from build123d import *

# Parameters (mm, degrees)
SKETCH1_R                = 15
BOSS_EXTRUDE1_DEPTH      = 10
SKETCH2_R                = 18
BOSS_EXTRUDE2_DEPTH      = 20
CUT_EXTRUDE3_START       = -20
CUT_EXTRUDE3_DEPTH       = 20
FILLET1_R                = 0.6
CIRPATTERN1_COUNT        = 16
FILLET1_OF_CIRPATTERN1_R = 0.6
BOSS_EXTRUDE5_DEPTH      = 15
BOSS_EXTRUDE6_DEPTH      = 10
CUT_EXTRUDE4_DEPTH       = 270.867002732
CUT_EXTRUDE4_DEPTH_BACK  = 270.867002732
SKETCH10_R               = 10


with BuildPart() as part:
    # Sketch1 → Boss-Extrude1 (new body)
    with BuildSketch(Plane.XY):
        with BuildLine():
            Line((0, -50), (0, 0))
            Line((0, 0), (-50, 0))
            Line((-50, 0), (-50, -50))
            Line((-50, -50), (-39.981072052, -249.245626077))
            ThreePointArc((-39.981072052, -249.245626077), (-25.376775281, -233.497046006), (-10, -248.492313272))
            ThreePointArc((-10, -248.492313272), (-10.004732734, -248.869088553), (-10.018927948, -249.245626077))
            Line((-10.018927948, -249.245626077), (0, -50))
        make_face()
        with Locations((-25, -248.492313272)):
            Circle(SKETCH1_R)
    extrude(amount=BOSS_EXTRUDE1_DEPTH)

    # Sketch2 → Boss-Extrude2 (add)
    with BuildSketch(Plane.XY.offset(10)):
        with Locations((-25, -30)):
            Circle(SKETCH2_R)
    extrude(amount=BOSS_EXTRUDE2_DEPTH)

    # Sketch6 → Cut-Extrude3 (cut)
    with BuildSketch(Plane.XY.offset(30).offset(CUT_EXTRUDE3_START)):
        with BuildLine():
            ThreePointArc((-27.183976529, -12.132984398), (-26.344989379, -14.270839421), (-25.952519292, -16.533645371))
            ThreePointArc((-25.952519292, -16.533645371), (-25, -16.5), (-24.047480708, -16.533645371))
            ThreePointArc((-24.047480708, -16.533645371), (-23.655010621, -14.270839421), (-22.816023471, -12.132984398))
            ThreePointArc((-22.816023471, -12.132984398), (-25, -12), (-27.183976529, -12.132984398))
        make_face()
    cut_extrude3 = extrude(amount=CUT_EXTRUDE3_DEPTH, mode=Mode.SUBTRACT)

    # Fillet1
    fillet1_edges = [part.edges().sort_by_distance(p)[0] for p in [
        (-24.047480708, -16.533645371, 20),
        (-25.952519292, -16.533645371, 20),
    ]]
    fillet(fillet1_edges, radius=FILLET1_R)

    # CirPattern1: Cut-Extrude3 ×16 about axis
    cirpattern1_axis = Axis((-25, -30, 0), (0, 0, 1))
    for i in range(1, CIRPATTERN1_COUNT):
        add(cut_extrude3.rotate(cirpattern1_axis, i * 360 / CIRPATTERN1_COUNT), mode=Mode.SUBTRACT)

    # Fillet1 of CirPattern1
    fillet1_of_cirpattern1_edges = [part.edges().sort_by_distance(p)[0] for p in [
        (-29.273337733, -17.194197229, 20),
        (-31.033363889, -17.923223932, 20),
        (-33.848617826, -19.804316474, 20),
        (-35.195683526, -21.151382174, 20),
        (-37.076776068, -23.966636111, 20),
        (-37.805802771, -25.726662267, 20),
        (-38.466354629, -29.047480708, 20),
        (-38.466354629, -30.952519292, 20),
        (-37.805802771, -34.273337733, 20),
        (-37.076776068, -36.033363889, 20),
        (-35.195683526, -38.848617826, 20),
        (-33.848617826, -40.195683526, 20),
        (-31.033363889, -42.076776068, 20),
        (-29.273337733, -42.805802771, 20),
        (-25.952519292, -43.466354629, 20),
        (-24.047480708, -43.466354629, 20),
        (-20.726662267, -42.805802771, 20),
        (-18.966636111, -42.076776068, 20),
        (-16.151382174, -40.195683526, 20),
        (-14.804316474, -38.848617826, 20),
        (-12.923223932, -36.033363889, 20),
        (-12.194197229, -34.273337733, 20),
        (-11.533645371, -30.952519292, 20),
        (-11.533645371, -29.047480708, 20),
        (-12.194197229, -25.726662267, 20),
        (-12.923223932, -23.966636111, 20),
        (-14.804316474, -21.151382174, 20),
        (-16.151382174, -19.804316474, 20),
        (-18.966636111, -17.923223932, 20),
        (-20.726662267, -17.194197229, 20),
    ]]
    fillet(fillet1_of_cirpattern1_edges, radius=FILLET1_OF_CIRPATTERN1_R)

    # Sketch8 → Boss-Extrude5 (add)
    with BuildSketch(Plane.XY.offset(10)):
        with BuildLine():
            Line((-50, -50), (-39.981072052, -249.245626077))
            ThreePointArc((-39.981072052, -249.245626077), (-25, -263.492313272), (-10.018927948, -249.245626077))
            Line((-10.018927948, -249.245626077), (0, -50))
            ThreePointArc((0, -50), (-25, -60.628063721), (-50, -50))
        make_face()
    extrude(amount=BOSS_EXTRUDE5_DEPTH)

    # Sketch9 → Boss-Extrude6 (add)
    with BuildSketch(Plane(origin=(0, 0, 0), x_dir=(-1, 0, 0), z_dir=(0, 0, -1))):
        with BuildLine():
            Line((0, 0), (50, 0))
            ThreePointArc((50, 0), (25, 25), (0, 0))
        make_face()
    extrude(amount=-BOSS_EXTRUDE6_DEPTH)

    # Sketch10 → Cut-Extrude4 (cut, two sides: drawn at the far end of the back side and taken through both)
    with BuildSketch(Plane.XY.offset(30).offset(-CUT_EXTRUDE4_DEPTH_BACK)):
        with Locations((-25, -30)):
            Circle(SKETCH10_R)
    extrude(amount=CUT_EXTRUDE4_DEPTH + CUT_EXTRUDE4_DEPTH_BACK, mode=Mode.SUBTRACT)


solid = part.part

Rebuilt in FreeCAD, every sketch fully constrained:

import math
import FreeCAD as App
import Part
import Sketcher
from FreeCAD import Vector
Q = App.Units.Quantity


def edges_at(feature, points):
    """Names of the edges that pass closest to the given points."""
    edges = feature.Shape.Edges
    near = lambda p: min(range(len(edges)), key=lambda i: edges[i].distToShape(Part.Vertex(*p))[0])
    return sorted({f"Edge{near(p) + 1}" for p in points})

doc = App.newDocument("Part")
body = doc.addObject("PartDesign::Body", "Body")

# Sketch on XY plane
sketch1 = doc.addObject("Sketcher::SketchObject", "Sketch")
body.addObject(sketch1)
sketch1.AttachmentSupport = (doc.XY_Plane, [""])
sketch1.MapMode = "FlatFace"
sketch1.addGeometry([
    Part.LineSegment(Vector(0, -50, 0), Vector(0, 0, 0)),  # 0
    Part.LineSegment(Vector(0, 0, 0), Vector(-50, 0, 0)),  # 1
    Part.LineSegment(Vector(-50, 0, 0), Vector(-50, -50, 0)),  # 2
    Part.LineSegment(Vector(-50, -50, 0), Vector(-40, -249, 0)),  # 3
    Part.ArcOfCircle(Part.Circle(Vector(-25, -248, 0), Vector(0, 0, 1), 15), math.radians(-177), math.radians(-3)),  # 4
    Part.LineSegment(Vector(-10, -249, 0), Vector(0, -50, 0)),  # 5
], False)
sketch1.addConstraint([
    Sketcher.Constraint("Coincident", 0, 2, 1, 1),
    Sketcher.Constraint("Coincident", 1, 2, 2, 1),
    Sketcher.Constraint("Coincident", 2, 2, 3, 1),
    Sketcher.Constraint("Tangent", 3, 2, 4, 1),
    Sketcher.Constraint("Tangent", 4, 2, 5, 1),
    Sketcher.Constraint("Coincident", 5, 2, 0, 1),
    Sketcher.Constraint("Vertical", 0),
    Sketcher.Constraint("Horizontal", 1),
    Sketcher.Constraint("Vertical", 2),
    Sketcher.Constraint("Coincident", 0, 2, -1, 1),
    Sketcher.Constraint("Horizontal", 3, 2, 4, 2),
    Sketcher.Constraint("Horizontal", 2, 2, 5, 2),
    Sketcher.Constraint("Equal", 1, 0),
    Sketcher.Constraint("Radius", 4, Q("15 mm")),
    Sketcher.Constraint("DistanceX", 1, 2, 1, 1, Q("50 mm")),
    Sketcher.Constraint("Distance", 3, Q("199.497364 mm")),
])
pad1 = doc.addObject("PartDesign::Pad", "Pad")
body.addObject(pad1)
pad1.Profile = sketch1
pad1.Length = 10

# Sketch on XY plane
sketch2 = doc.addObject("Sketcher::SketchObject", "Sketch001")
body.addObject(sketch2)
sketch2.AttachmentSupport = (doc.XY_Plane, [""])
sketch2.MapMode = "FlatFace"
sketch2.AttachmentOffset = App.Placement(Vector(0, 0, 10), App.Rotation())
sketch2.addGeometry(Part.Circle(Vector(-25, -30, 0), Vector(0, 0, 1), 18), False)
sketch2.addConstraint([
    Sketcher.Constraint("Diameter", 0, Q("36 mm")),
    Sketcher.Constraint("DistanceX", 0, 3, -1, 1, Q("25 mm")),
    Sketcher.Constraint("DistanceY", 0, 3, -1, 1, Q("30 mm")),
])
pad2 = doc.addObject("PartDesign::Pad", "Pad001")
body.addObject(pad2)
pad2.Profile = sketch2
pad2.Length = 20

# Sketch on XY plane
sketch3 = doc.addObject("Sketcher::SketchObject", "Sketch002")
body.addObject(sketch3)
sketch3.AttachmentSupport = (doc.XY_Plane, [""])
sketch3.MapMode = "FlatFace"
sketch3.AttachmentOffset = App.Placement(Vector(0, 0, 10), App.Rotation())
sketch3.addGeometry([
    Part.ArcOfCircle(Part.Circle(Vector(-37.3, -17.3, 0), Vector(0, 0, 1), 11.4), math.radians(4), math.radians(27)),
    Part.ArcOfCircle(Part.Circle(Vector(-25, -30, 0), Vector(0, 0, 1), 13.5), math.radians(85.95), math.radians(94.05)),
    Part.ArcOfCircle(Part.Circle(Vector(-12.7, -17.3, 0), Vector(0, 0, 1), 11.4), math.radians(153), math.radians(176)),
    Part.ArcOfCircle(Part.Circle(Vector(-25, -30, 0), Vector(0, 0, 1), 18), math.radians(83.03), math.radians(96.97)),
], False)
sketch3.addConstraint([
    Sketcher.Constraint("Coincident", 0, 1, 1, 2),
    Sketcher.Constraint("Coincident", 1, 1, 2, 2),
    Sketcher.Constraint("Coincident", 2, 1, 3, 1),
    Sketcher.Constraint("Coincident", 3, 2, 0, 2),
    Sketcher.Constraint("Coincident", 3, 3, 1, 3),
    Sketcher.Constraint("Equal", 0, 2),
    Sketcher.Constraint("Horizontal", 0, 3, 2, 3),
    Sketcher.Constraint("Horizontal", 0, 1, 1, 1),
    Sketcher.Constraint("Radius", 3, Q("18 mm")),
    Sketcher.Constraint("Radius", 1, Q("13.5 mm")),
    Sketcher.Constraint("DistanceX", 1, 3, -1, 1, Q("25 mm")),
    Sketcher.Constraint("DistanceY", 1, 3, -1, 1, Q("30 mm")),
    Sketcher.Constraint("Radius", 0, Q("11.375157 mm")),
    Sketcher.Constraint("DistanceX", 0, 1, -1, 1, Q("25.952519 mm")),
    Sketcher.Constraint("DistanceY", 1, 1, 2, 1, Q("4.400661 mm")),
])
pocket1 = doc.addObject("PartDesign::Pocket", "Pocket")
body.addObject(pocket1)
pocket1.Profile = sketch3
pocket1.Length = 20
pocket1.Reversed = True
doc.recompute()

fillet = doc.addObject("PartDesign::Fillet", "Fillet")
body.addObject(fillet)
fillet.Base = (pocket1, edges_at(pocket1, [(-24.047, -16.534, 20), (-25.953, -16.534, 20)]))
fillet.Radius = 0.6
doc.recompute()

datumline = doc.addObject("PartDesign::Line", "DatumLine")
body.addObject(datumline)
datumline.Placement = App.Placement(Vector(-25, -30, 0), App.Rotation(Vector(0, 0, 1), Vector(0, 0, 1)))
polarpattern = doc.addObject("PartDesign::PolarPattern", "PolarPattern")
body.addObject(polarpattern)
polarpattern.Originals = [pocket1]
polarpattern.Axis = (datumline, [""])
polarpattern.Angle = 360
polarpattern.Occurrences = 16
body.Tip = polarpattern
doc.recompute()

fillet2 = doc.addObject("PartDesign::Fillet", "Fillet001")
body.addObject(fillet2)
fillet2.Base = (polarpattern, edges_at(polarpattern, [
    (-29.273, -17.194, 20),
    (-31.033, -17.923, 20),
    (-33.849, -19.804, 20),
    (-35.196, -21.151, 20),
    (-37.077, -23.967, 20),
    (-37.806, -25.727, 20),
    (-38.466, -29.047, 20),
    (-38.466, -30.953, 20),
    (-37.806, -34.273, 20),
    (-37.077, -36.033, 20),
    (-35.196, -38.849, 20),
    (-33.849, -40.196, 20),
    (-31.033, -42.077, 20),
    (-29.273, -42.806, 20),
    (-25.953, -43.466, 20),
    (-24.047, -43.466, 20),
    (-20.727, -42.806, 20),
    (-18.967, -42.077, 20),
    (-16.151, -40.196, 20),
    (-14.804, -38.849, 20),
    (-12.923, -36.033, 20),
    (-12.194, -34.273, 20),
    (-11.534, -30.953, 20),
    (-11.534, -29.047, 20),
    (-12.194, -25.727, 20),
    (-12.923, -23.967, 20),
    (-14.804, -21.151, 20),
    (-16.151, -19.804, 20),
    (-18.967, -17.923, 20),
    (-20.727, -17.194, 20),
]))
fillet2.Radius = 0.6

# Sketch on XY plane
sketch4 = doc.addObject("Sketcher::SketchObject", "Sketch003")
body.addObject(sketch4)
sketch4.AttachmentSupport = (doc.XY_Plane, [""])
sketch4.MapMode = "FlatFace"
sketch4.AttachmentOffset = App.Placement(Vector(0, 0, 10), App.Rotation())
sketch4.addGeometry([
    Part.LineSegment(Vector(-50, -50, 0), Vector(-40, -249, 0)),
    Part.ArcOfCircle(Part.Circle(Vector(-25, -248, 0), Vector(0, 0, 1), 15), math.radians(-177), math.radians(-3)),
    Part.LineSegment(Vector(-10, -249, 0), Vector(0, -50, 0)),
    Part.ArcOfCircle(Part.Circle(Vector(-25, -26, 0), Vector(0, 0, 1), 35), math.radians(-136), math.radians(-44)),
], False)
sketch4.addConstraint([
    Sketcher.Constraint("Tangent", 0, 2, 1, 1),
    Sketcher.Constraint("Tangent", 1, 2, 2, 1),
    Sketcher.Constraint("Coincident", 2, 2, 3, 2),
    Sketcher.Constraint("Coincident", 3, 1, 0, 1),
    Sketcher.Constraint("PointOnObject", 2, 2, -2),
    Sketcher.Constraint("Horizontal", 0, 2, 1, 2),
    Sketcher.Constraint("Horizontal", 2, 2, 3, 1),
    Sketcher.Constraint("Radius", 1, Q("15 mm")),
    Sketcher.Constraint("DistanceX", 1, 3, -1, 1, Q("25 mm")),
    Sketcher.Constraint("DistanceY", 2, 2, -1, 1, Q("50 mm")),
    Sketcher.Constraint("Radius", 3, Q("34.717318 mm")),
    Sketcher.Constraint("DistanceY", 0, 2, 3, 3, Q("223.33488 mm")),
])
pad3 = doc.addObject("PartDesign::Pad", "Pad002")
body.addObject(pad3)
pad3.Profile = sketch4
pad3.Length = 15

# Sketch on XY plane
sketch5 = doc.addObject("Sketcher::SketchObject", "Sketch004")
body.addObject(sketch5)
sketch5.AttachmentSupport = (doc.XY_Plane, [""])
sketch5.MapMode = "FlatFace"
sketch5.addGeometry([
    Part.LineSegment(Vector(0, 0, 0), Vector(-50, 0, 0)),
    Part.ArcOfCircle(Part.Circle(Vector(-25, 0, 0), Vector(0, 0, 1), 25), math.radians(0), math.radians(180)),
], False)
sketch5.addConstraint([
    Sketcher.Constraint("Coincident", 0, 1, 1, 1),
    Sketcher.Constraint("Coincident", 1, 2, 0, 2),
    Sketcher.Constraint("Horizontal", 0),
    Sketcher.Constraint("Coincident", 0, 1, -1, 1),
    Sketcher.Constraint("PointOnObject", 1, 3, -1),
    Sketcher.Constraint("Radius", 1, Q("25 mm")),
])
pad4 = doc.addObject("PartDesign::Pad", "Pad003")
body.addObject(pad4)
pad4.Profile = sketch5
pad4.Length = 10

# Sketch on XY plane
sketch6 = doc.addObject("Sketcher::SketchObject", "Sketch005")
body.addObject(sketch6)
sketch6.AttachmentSupport = (doc.XY_Plane, [""])
sketch6.MapMode = "FlatFace"
sketch6.AttachmentOffset = App.Placement(Vector(0, 0, 30), App.Rotation())
sketch6.addGeometry(Part.Circle(Vector(-25, -30, 0), Vector(0, 0, 1), 10), False)
sketch6.addConstraint([
    Sketcher.Constraint("Diameter", 0, Q("20 mm")),
    Sketcher.Constraint("DistanceX", 0, 3, -1, 1, Q("25 mm")),
    Sketcher.Constraint("DistanceY", 0, 3, -1, 1, Q("30 mm")),
])
pocket2 = doc.addObject("PartDesign::Pocket", "Pocket001")
body.addObject(pocket2)
pocket2.Profile = sketch6
pocket2.Type = "ThroughAll"
pocket2.Midplane = True

doc.recompute()
